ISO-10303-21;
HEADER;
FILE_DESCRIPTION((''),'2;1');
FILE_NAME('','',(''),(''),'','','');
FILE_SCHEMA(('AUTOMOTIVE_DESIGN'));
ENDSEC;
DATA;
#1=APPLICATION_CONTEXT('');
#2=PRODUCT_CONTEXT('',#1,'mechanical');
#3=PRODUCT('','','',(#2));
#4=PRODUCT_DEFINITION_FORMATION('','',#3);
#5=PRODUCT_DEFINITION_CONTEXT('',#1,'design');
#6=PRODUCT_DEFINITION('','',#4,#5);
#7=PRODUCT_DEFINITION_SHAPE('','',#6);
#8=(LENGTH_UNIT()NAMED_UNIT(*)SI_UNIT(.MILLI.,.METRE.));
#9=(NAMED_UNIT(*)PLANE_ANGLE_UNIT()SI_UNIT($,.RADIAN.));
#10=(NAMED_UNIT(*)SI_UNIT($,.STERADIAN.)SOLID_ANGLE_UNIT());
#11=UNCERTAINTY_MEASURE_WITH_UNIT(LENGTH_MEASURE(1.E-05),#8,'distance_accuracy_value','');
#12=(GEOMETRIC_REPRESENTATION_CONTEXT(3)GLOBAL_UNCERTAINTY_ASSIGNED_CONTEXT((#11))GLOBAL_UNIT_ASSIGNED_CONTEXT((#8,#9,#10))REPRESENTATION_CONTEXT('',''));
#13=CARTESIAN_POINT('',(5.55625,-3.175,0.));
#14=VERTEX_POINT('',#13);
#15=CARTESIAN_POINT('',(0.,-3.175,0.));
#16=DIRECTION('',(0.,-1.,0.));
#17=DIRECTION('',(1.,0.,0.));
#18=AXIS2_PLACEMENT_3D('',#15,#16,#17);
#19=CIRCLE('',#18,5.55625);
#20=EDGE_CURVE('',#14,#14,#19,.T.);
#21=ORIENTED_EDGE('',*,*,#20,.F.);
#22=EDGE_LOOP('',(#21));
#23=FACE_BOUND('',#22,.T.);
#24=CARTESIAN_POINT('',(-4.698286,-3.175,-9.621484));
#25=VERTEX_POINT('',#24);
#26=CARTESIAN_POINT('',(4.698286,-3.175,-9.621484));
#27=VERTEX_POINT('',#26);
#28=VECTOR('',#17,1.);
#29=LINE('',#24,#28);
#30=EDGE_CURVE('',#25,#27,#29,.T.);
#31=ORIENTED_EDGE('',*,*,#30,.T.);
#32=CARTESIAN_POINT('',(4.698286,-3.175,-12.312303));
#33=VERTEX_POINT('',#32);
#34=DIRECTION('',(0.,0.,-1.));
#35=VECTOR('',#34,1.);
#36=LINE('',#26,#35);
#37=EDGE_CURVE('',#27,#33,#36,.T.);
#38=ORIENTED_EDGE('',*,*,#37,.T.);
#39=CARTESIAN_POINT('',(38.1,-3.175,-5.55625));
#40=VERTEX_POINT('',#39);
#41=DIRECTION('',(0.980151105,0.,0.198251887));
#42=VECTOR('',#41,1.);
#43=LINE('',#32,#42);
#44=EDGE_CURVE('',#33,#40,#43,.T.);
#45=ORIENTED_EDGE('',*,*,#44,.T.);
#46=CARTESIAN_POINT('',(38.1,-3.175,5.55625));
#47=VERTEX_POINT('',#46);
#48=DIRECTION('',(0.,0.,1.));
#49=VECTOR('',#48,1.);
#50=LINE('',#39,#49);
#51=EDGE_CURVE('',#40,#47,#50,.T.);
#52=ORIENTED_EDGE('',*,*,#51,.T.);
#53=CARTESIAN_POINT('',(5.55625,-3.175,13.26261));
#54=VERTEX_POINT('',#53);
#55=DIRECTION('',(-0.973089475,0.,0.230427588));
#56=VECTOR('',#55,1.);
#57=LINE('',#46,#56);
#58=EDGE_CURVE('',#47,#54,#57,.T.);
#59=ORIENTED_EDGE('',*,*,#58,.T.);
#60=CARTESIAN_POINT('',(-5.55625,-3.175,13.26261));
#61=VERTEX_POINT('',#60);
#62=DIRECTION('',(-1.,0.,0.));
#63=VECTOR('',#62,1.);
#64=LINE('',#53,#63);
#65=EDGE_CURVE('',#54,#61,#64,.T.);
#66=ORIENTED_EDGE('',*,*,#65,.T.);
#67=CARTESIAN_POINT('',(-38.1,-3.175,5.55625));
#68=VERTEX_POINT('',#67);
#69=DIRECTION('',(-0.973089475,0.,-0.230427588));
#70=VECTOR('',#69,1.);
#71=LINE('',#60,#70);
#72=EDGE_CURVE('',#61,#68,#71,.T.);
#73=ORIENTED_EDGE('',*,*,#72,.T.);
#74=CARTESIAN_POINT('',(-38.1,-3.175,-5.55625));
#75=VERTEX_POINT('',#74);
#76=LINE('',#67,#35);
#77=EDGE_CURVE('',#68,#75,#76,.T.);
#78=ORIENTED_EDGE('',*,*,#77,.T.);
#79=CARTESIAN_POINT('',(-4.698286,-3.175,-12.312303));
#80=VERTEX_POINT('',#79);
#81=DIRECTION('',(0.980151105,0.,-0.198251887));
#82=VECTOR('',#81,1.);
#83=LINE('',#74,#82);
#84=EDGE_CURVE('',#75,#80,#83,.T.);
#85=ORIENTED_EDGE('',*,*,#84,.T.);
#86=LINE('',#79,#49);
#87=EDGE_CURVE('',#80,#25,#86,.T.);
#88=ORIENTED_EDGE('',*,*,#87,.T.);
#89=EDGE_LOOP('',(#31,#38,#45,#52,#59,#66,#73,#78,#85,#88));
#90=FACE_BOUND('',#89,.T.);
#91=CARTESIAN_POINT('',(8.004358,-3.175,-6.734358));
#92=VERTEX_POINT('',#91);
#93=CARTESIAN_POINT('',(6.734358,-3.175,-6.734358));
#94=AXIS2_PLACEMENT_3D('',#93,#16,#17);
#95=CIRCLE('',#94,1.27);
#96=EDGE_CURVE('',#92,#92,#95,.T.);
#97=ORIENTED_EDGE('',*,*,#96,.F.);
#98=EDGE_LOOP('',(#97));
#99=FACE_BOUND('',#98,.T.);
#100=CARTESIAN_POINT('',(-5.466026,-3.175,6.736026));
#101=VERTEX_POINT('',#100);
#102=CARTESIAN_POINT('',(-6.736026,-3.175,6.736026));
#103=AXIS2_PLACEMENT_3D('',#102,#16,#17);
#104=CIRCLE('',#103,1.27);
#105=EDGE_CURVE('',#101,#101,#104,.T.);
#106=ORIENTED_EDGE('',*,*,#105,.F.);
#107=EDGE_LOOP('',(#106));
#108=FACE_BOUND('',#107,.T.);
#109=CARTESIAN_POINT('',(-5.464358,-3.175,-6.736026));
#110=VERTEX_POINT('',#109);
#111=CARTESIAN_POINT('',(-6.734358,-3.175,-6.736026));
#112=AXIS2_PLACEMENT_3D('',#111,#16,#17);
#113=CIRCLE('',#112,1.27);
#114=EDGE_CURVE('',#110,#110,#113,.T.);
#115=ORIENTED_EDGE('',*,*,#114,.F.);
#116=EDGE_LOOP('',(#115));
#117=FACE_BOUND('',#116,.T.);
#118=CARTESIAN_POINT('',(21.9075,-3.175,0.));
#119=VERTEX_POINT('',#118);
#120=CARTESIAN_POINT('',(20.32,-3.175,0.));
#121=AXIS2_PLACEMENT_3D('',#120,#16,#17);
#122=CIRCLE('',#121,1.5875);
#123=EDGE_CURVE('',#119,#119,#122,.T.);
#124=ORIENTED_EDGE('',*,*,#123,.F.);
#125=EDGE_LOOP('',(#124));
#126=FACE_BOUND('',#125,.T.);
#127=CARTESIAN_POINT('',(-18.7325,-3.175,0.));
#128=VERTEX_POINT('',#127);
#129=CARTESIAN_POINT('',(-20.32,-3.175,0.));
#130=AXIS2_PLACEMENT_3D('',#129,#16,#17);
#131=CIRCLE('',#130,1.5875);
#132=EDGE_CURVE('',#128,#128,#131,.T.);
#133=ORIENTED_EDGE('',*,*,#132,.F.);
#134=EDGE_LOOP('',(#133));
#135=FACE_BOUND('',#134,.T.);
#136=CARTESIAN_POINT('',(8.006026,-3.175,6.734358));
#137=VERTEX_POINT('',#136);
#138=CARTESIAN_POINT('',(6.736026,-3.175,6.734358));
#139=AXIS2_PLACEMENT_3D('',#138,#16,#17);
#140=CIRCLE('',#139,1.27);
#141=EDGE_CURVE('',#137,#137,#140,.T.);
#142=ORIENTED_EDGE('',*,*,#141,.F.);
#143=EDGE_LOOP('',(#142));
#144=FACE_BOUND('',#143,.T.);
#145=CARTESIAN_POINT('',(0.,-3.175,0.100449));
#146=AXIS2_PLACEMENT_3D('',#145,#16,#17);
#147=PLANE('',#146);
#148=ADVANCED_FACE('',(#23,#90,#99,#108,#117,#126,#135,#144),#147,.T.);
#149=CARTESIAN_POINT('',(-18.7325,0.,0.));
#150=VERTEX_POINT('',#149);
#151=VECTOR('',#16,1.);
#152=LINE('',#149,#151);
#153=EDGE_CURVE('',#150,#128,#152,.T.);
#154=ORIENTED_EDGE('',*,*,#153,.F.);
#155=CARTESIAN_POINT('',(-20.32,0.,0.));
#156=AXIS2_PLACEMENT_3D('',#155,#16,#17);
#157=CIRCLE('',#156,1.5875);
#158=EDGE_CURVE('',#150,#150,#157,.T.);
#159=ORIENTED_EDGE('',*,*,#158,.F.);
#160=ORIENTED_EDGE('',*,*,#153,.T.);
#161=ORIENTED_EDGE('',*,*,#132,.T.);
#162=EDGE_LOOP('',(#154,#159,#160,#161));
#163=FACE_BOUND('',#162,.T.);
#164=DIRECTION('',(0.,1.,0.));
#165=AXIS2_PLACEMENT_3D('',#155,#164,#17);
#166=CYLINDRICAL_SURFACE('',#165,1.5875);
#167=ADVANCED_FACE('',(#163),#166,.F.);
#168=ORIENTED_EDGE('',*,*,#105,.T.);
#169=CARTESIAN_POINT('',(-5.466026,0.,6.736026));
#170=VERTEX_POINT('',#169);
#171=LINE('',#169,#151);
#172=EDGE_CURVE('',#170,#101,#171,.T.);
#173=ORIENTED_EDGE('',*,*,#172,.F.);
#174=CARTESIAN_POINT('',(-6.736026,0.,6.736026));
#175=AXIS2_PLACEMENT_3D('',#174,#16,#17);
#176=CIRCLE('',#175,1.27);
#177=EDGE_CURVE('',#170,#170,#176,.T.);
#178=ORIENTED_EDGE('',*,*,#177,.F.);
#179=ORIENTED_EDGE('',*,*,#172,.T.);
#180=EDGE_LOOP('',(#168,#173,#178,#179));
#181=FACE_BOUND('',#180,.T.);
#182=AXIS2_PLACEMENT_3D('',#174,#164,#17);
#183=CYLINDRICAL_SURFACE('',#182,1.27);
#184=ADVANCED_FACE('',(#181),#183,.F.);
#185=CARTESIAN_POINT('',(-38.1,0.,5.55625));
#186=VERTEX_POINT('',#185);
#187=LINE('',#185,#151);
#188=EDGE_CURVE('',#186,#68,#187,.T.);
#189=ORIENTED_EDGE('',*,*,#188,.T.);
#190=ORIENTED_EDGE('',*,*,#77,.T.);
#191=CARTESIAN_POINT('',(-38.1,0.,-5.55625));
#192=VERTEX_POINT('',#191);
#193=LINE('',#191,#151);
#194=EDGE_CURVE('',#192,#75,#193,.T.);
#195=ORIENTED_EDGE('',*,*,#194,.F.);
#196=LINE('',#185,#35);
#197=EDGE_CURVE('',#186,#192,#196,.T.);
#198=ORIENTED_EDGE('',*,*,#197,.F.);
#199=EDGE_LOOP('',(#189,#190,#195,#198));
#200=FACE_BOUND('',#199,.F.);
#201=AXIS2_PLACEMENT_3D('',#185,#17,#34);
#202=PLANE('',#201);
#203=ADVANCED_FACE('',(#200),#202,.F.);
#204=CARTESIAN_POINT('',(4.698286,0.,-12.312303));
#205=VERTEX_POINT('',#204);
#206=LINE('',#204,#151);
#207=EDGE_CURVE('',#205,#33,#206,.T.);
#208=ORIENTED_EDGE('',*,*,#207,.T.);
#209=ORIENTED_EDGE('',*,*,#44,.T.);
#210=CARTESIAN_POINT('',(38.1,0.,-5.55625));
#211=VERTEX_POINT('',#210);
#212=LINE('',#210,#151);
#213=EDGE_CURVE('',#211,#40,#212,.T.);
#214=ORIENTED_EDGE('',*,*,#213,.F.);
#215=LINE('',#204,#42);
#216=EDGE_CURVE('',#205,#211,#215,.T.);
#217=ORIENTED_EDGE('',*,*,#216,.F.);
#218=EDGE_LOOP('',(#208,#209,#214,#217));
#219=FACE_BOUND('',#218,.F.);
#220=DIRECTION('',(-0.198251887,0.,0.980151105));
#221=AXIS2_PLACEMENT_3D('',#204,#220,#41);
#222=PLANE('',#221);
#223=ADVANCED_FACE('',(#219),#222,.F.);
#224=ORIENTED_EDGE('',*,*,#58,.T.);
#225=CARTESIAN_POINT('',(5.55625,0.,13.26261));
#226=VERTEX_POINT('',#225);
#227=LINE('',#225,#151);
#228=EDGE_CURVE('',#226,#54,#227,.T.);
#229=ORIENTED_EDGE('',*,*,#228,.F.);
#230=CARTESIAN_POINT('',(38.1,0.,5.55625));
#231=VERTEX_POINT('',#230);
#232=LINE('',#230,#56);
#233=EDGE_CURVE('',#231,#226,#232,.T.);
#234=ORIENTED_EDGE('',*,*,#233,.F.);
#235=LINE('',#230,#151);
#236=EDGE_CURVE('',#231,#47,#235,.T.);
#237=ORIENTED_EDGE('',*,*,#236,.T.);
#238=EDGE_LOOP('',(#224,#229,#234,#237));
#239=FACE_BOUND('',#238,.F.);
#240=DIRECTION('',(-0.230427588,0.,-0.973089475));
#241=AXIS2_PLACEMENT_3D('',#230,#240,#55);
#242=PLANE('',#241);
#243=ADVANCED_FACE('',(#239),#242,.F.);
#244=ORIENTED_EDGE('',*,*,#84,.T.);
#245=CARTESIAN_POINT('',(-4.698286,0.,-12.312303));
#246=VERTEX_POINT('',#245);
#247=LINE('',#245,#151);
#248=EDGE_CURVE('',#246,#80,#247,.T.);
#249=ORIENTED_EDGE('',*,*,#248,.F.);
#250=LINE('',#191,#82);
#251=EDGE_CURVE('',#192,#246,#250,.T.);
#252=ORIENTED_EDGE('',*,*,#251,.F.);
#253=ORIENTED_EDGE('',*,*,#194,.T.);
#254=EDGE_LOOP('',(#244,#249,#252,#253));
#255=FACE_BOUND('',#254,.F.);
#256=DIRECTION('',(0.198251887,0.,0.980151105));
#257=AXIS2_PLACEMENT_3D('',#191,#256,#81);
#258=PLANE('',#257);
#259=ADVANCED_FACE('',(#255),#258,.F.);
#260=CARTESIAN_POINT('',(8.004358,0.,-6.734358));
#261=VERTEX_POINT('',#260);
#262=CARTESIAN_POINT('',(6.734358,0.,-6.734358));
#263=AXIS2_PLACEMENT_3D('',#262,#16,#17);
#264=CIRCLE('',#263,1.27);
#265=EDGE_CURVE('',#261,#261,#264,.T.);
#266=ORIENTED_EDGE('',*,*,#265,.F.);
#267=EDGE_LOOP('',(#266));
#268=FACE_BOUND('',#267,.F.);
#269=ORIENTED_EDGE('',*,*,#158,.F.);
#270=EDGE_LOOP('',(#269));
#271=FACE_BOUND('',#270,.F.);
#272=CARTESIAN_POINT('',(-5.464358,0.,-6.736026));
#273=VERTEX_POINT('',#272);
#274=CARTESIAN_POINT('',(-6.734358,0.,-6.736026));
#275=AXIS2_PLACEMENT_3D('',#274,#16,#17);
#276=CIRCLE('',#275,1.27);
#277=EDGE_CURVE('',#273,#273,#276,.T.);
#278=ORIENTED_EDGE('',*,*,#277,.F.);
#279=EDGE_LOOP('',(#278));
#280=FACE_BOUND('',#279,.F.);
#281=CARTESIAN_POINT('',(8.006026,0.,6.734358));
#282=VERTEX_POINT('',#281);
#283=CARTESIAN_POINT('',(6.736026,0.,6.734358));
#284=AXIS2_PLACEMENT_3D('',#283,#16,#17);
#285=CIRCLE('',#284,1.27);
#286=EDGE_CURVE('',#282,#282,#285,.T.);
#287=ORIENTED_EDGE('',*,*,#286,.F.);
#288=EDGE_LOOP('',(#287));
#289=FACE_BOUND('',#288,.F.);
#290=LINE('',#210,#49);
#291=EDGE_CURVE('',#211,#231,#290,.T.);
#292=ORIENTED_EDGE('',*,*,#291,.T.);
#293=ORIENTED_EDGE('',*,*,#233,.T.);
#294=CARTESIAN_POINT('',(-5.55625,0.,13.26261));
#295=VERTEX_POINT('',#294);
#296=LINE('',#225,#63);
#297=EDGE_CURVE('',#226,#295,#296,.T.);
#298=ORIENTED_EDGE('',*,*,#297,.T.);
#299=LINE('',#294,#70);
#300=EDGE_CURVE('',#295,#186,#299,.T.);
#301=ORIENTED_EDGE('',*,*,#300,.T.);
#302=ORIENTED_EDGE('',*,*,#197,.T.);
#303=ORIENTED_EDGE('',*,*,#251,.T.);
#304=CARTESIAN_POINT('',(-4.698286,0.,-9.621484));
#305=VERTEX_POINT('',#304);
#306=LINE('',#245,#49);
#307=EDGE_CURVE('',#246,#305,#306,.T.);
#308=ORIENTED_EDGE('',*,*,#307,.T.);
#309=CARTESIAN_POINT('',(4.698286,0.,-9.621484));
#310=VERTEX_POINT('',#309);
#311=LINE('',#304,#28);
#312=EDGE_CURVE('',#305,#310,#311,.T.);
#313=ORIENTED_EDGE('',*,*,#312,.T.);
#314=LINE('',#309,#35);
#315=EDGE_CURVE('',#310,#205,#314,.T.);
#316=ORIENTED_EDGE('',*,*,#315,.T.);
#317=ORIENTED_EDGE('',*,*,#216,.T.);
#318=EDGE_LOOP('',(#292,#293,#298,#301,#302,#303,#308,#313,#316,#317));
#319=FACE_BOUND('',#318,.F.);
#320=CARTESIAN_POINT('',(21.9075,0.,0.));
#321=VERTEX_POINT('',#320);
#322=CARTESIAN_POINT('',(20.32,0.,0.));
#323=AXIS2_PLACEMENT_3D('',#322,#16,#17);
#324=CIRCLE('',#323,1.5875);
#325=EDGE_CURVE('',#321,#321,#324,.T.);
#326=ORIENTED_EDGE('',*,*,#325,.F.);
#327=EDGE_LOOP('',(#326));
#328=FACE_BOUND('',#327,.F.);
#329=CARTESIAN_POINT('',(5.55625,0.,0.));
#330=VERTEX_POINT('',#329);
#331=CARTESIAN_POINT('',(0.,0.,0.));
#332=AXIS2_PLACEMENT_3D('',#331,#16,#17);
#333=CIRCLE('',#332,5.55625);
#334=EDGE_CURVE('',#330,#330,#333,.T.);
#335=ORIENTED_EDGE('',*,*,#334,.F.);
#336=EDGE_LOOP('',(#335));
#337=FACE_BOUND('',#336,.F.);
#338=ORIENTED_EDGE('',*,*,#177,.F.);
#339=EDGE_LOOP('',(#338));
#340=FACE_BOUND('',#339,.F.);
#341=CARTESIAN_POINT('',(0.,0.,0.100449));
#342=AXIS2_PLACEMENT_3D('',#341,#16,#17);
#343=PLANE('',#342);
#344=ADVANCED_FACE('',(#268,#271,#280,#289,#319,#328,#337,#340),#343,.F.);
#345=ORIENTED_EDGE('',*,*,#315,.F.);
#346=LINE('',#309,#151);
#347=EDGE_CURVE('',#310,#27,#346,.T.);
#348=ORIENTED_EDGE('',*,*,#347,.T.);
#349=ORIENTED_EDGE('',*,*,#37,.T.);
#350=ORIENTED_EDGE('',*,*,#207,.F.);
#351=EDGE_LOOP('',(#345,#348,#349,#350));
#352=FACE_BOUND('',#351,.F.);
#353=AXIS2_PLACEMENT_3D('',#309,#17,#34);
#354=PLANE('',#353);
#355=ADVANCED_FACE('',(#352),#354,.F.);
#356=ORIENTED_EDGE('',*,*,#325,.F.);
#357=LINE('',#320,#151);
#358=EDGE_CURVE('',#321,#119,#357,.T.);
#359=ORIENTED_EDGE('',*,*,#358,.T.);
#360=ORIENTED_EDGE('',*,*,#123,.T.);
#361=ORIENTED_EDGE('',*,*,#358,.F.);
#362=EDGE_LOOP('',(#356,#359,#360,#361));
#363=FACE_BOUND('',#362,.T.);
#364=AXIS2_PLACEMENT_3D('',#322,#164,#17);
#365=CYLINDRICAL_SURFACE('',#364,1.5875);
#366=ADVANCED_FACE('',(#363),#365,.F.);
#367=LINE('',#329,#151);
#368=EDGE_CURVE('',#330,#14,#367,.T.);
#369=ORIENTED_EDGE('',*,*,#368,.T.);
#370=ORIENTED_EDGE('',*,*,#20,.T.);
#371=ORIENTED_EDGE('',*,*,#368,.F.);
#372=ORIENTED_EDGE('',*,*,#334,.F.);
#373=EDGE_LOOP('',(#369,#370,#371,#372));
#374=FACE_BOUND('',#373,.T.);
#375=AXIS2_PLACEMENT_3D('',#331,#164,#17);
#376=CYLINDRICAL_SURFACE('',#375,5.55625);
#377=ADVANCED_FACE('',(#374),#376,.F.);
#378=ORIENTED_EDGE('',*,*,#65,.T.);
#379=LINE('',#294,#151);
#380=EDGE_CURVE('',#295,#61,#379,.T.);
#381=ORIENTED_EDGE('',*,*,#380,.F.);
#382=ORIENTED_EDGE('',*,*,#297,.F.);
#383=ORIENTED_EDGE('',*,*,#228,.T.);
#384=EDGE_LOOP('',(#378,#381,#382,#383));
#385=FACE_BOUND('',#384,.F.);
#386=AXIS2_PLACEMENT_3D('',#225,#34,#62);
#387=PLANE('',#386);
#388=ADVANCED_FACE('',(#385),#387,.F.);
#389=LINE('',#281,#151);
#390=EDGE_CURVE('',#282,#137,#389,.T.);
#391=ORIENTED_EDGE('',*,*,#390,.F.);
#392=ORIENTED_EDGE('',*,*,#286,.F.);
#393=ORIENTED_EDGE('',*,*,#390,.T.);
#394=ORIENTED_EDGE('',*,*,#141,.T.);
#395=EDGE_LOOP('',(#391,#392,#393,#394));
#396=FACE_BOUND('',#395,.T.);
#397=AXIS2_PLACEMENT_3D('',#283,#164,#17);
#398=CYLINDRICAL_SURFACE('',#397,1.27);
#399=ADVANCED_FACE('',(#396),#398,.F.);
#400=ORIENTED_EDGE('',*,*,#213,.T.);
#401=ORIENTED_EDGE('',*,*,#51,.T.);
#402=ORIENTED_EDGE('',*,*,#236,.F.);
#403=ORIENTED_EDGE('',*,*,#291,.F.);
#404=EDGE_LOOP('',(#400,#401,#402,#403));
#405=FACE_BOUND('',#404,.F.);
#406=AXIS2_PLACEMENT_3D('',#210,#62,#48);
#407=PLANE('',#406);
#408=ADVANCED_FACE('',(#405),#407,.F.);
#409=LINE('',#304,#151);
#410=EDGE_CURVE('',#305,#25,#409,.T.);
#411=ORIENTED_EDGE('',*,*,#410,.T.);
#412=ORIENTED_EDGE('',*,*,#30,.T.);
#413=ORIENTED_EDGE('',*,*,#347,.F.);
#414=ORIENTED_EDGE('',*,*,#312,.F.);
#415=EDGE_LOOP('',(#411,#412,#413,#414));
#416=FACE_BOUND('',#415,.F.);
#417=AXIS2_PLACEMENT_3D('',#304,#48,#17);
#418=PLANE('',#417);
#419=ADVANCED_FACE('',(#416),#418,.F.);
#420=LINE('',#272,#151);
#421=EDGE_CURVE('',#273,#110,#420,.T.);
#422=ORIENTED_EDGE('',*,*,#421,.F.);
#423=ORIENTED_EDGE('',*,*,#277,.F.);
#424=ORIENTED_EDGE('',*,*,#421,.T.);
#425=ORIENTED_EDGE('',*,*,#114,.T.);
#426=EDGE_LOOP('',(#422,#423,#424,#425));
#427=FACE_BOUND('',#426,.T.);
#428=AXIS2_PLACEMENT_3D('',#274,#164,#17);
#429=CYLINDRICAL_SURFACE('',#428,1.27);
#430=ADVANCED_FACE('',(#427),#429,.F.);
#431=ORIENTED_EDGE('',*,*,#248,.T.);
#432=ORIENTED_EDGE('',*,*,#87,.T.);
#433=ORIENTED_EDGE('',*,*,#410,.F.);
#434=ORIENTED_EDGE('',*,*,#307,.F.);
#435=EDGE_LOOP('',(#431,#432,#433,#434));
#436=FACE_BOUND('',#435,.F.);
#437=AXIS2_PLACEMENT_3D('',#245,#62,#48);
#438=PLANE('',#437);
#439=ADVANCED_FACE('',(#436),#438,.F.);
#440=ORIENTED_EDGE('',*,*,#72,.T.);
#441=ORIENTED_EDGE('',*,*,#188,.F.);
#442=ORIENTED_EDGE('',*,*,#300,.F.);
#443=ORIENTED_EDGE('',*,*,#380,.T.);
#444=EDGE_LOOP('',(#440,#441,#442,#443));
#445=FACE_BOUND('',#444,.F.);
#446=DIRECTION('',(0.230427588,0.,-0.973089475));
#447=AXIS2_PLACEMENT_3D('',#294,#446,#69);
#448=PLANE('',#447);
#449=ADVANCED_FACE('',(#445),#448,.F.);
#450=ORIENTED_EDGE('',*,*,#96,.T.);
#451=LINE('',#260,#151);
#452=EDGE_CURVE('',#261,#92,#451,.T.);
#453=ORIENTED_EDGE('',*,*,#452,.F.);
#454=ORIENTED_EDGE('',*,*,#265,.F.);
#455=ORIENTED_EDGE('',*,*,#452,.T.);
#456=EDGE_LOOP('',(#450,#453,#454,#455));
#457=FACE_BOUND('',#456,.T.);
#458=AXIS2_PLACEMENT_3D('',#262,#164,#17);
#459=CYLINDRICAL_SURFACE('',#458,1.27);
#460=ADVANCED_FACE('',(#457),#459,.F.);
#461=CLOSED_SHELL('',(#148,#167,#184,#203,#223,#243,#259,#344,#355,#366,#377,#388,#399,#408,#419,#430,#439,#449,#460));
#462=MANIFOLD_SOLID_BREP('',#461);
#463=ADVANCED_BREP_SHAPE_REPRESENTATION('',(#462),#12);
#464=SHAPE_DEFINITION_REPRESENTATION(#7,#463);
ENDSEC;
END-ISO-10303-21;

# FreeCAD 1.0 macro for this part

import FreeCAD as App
import Part
import Sketcher
from FreeCAD import Vector
Q = App.Units.Quantity


def add_polygon(sketch, points):
    """Adds a closed chain of lines whose ends are joined by coincident constraints."""
    first, n = sketch.GeometryCount, len(points)
    for a, b in zip(points, points[1:] + points[:1]):
        sketch.addGeometry(Part.LineSegment(App.Vector(*a, 0), App.Vector(*b, 0)), False)
    for i in range(n):
        sketch.addConstraint(Sketcher.Constraint("Coincident", first + i, 2, first + (i + 1) % n, 1))

doc = App.newDocument("Part")
params = doc.addObject("Spreadsheet::Sheet", "Params")
for row, (alias, value) in enumerate([
    ("sketch1_diameter", "0.1 in"),
    ("sketch1_diameter2", "0.125 in"),
    ("sketch1_diameter3", "0.4375 in"),
    ("sketch1_width", "0.4375 in"),
    ("pad1_length", "0.125 in"),
], start=1):
    params.set(f"A{row}", alias)
    params.set(f"B{row}", "=" + value)
    params.setAlias(f"B{row}", alias)

body = doc.addObject("PartDesign::Body", "Body")

sketch1 = body.newObject("Sketcher::SketchObject", "Sketch")
sketch1.AttachmentSupport = (doc.getObject("XZ_Plane"), [""])
sketch1.MapMode = "FlatFace"
add_polygon(sketch1, [(4.7, -12.3), (38.1, -5.6), (38.1, 5.6), (5.6, 13.3), (-5.6, 13.3), (-38.1, 5.6), (-38.1, -5.6), (-4.7, -12.3), (-4.7, -9.6), (4.7, -9.6)])
sketch1.addGeometry(Part.Circle(Vector(-6.7, -6.7, 0), Vector(0, 0, 1), 1.3), False)
sketch1.addGeometry(Part.Circle(Vector(-20.3, 0, 0), Vector(0, 0, 1), 1.6), False)
sketch1.addGeometry(Part.Circle(Vector(6.7, -6.7, 0), Vector(0, 0, 1), 1.3), False)
sketch1.addGeometry(Part.Circle(Vector(0, 0, 0), Vector(0, 0, 1), 5.6), False)
sketch1.addGeometry(Part.Circle(Vector(20.3, 0, 0), Vector(0, 0, 1), 1.6), False)
sketch1.addGeometry(Part.Circle(Vector(-6.7, 6.7, 0), Vector(0, 0, 1), 1.3), False)
sketch1.addGeometry(Part.Circle(Vector(6.7, 6.7, 0), Vector(0, 0, 1), 1.3), False)
sketch1.addConstraint(Sketcher.Constraint("Vertical", 1))
sketch1.addConstraint(Sketcher.Constraint("Horizontal", 3))
sketch1.addConstraint(Sketcher.Constraint("Vertical", 5))
sketch1.addConstraint(Sketcher.Constraint("Vertical", 7))
sketch1.addConstraint(Sketcher.Constraint("Horizontal", 8))
sketch1.addConstraint(Sketcher.Constraint("Vertical", 9))
sketch1.addConstraint(Sketcher.Constraint("Coincident", 13, 3, -1, 1))
sketch1.addConstraint(Sketcher.Constraint("Equal", 10, 12))
sketch1.addConstraint(Sketcher.Constraint("Equal", 11, 14))
sketch1.addConstraint(Sketcher.Constraint("Equal", 12, 15))
sketch1.addConstraint(Sketcher.Constraint("Equal", 15, 16))
sketch1.addConstraint(Sketcher.Constraint("Symmetric", 11, 3, 14, 3, -1, 1))
sketch1.addConstraint(Sketcher.Constraint("Symmetric", 0, 2, 4, 2, -1, 1))
sketch1.addConstraint(Sketcher.Constraint("Symmetric", 6, 2, 9, 2, -2))
sketch1.addConstraint(Sketcher.Constraint("PointOnObject", 11, 3, -1))
sketch1.addConstraint(Sketcher.Constraint("Horizontal", 1, 2, 4, 2))
sketch1.addConstraint(Sketcher.Constraint("Horizontal", 0, 2, 5, 2))
sketch1.addConstraint(Sketcher.Constraint("Equal", 3, 1))
sketch1.addConstraint(Sketcher.Constraint("Equal", 2, 4))
sketch1.addConstraint(Sketcher.Constraint("Diameter", 10, Q("0.1 in")))
sketch1.addConstraint(Sketcher.Constraint("Diameter", 11, Q("0.125 in")))
sketch1.addConstraint(Sketcher.Constraint("Diameter", 13, Q("0.4375 in")))
sketch1.addConstraint(Sketcher.Constraint("DistanceX", 11, 3, -1, 1, Q("0.8 in")))
sketch1.addConstraint(Sketcher.Constraint("DistanceX", -1, 1, 0, 2, Q("1.5 in")))
sketch1.addConstraint(Sketcher.Constraint("DistanceX", 3, 2, 3, 1, Q("0.4375 in")))
sketch1.addConstraint(Sketcher.Constraint("DistanceY", 4, 2, 3, 2, Q("0.3034 in")))
sketch1.addConstraint(Sketcher.Constraint("DistanceY", 7, 1, 7, 2, Q("2.690819 mm")))
sketch1.addConstraint(Sketcher.Constraint("DistanceX", 8, 1, 8, 2, Q("9.396572 mm")))
sketch1.addConstraint(Sketcher.Constraint("DistanceX", 10, 3, -1, 1, Q("6.734358 mm")))
sketch1.addConstraint(Sketcher.Constraint("DistanceX", -1, 1, 12, 3, Q("6.734358 mm")))
sketch1.addConstraint(Sketcher.Constraint("DistanceY", 12, 3, -1, 1, Q("6.734358 mm")))
sketch1.addConstraint(Sketcher.Constraint("DistanceY", -1, 1, 16, 3, Q("6.734358 mm")))
sketch1.addConstraint(Sketcher.Constraint("DistanceX", 15, 3, 6, 2, Q("2.03774 mm")))
sketch1.addConstraint(Sketcher.Constraint("DistanceY", 6, 2, 15, 3, Q("19.048329 mm")))
sketch1.addConstraint(Sketcher.Constraint("DistanceY", 7, 2, 10, 3, Q("2.885458 mm")))
sketch1.addConstraint(Sketcher.Constraint("Distance", 0, Q("34.078127 mm")))
sketch1.addConstraint(Sketcher.Constraint("DistanceX", -1, 1, 16, 3, Q("6.736026 mm")))
sketch1.setExpression("Constraints[29]", "Params.sketch1_diameter")
sketch1.setExpression("Constraints[30]", "Params.sketch1_diameter2")
sketch1.setExpression("Constraints[31]", "Params.sketch1_diameter3")
sketch1.setExpression("Constraints[34]", "Params.sketch1_width")
pad1 = body.newObject("PartDesign::Pad", "Pad")
pad1.Profile = sketch1
pad1.setExpression("Length", "Params.pad1_length")

doc.recompute()
